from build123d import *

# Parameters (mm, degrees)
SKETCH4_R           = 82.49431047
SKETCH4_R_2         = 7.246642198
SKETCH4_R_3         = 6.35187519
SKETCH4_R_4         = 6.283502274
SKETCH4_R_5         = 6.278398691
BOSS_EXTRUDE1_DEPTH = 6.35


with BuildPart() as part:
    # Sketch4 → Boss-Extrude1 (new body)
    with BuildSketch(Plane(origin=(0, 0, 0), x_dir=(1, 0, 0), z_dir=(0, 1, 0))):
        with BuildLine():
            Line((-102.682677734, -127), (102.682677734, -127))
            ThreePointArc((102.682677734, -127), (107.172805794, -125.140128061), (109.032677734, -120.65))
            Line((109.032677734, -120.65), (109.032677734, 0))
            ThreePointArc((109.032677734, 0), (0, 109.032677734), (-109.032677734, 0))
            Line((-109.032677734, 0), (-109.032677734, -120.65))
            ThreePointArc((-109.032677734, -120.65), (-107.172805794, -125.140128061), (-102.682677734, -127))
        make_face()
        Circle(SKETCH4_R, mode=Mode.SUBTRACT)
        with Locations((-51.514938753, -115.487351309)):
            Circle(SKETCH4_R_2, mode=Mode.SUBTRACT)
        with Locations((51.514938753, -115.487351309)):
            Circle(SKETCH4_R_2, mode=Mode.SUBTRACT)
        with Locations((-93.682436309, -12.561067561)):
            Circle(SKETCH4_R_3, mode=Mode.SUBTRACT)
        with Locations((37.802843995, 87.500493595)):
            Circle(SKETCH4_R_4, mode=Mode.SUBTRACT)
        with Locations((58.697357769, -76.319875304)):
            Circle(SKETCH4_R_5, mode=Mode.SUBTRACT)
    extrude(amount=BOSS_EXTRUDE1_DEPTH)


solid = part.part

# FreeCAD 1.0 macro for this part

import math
import FreeCAD as App
import Part
import Sketcher

V = App.Vector
Q = App.Units.Quantity

doc = App.newDocument("Part")
body = doc.addObject("PartDesign::Body", "Body")

sketch1 = body.newObject("Sketcher::SketchObject", "Sketch")
sketch1.AttachmentSupport = (doc.getObject("XZ_Plane"), [""])
sketch1.MapMode = "FlatFace"
sketch1.addGeometry([
    Part.LineSegment(V(-103, 127, 0), V(103, 127, 0)),
    Part.ArcOfCircle(Part.Circle(V(103, 121, 0), V(0, 0, 1), 6), math.radians(0), math.radians(90)),
    Part.LineSegment(V(109, 121, 0), V(109, 0, 0)),
    Part.ArcOfCircle(Part.Circle(V(0, 0, 0), V(0, 0, 1), 109), math.radians(180), math.radians(360)),
    Part.LineSegment(V(-109, 0, 0), V(-109, 121, 0)),
    Part.ArcOfCircle(Part.Circle(V(-103, 121, 0), V(0, 0, 1), 6), math.radians(90), math.radians(180)),
    Part.Circle(V(-52, 115, 0), V(0, 0, 1), 7),
    Part.Circle(V(52, 115, 0), V(0, 0, 1), 7),
    Part.Circle(V(59, 76, 0), V(0, 0, 1), 6),
    Part.Circle(V(-94, 13, 0), V(0, 0, 1), 6),
    Part.Circle(V(0, 0, 0), V(0, 0, 1), 82),
    Part.Circle(V(38, -88, 0), V(0, 0, 1), 6),
], False)
sketch1.addConstraint([
    Sketcher.Constraint("Tangent", 0, 2, 1, 2),
    Sketcher.Constraint("Tangent", 1, 1, 2, 1),
    Sketcher.Constraint("Tangent", 2, 2, 3, 2),
    Sketcher.Constraint("Tangent", 3, 1, 4, 1),
    Sketcher.Constraint("Tangent", 4, 2, 5, 2),
    Sketcher.Constraint("Tangent", 5, 1, 0, 1),
    Sketcher.Constraint("Horizontal", 0),
    Sketcher.Constraint("Vertical", 2),
    Sketcher.Constraint("Vertical", 4),
    Sketcher.Constraint("Coincident", 3, 3, -1, 1),
    Sketcher.Constraint("Coincident", 10, 3, -1, 1),
    Sketcher.Constraint("Equal", 1, 5),
    Sketcher.Constraint("Equal", 6, 7),
    Sketcher.Constraint("Symmetric", 6, 3, 7, 3, -2),
    Sketcher.Constraint("Radius", 1, Q("0.25 in")),
    Sketcher.Constraint("DistanceY", -1, 1, 0, 2, Q("5 in")),
    Sketcher.Constraint("Diameter", 9, Q("12.70375 mm")),
    Sketcher.Constraint("Diameter", 10, Q("164.988621 mm")),
    Sketcher.Constraint("Diameter", 6, Q("14.493284 mm")),
    Sketcher.Constraint("Diameter", 8, Q("12.556797 mm")),
    Sketcher.Constraint("Diameter", 11, Q("12.567005 mm")),
    Sketcher.Constraint("Radius", 3, Q("109.032678 mm")),
    Sketcher.Constraint("DistanceX", 6, 3, -1, 1, Q("51.514939 mm")),
    Sketcher.Constraint("DistanceY", -1, 1, 6, 3, Q("115.487351 mm")),
    Sketcher.Constraint("DistanceX", 7, 3, 8, 3, Q("7.182419 mm")),
    Sketcher.Constraint("DistanceX", 5, 3, 9, 3, Q("9.000241 mm")),
    Sketcher.Constraint("DistanceY", 11, 3, 8, 3, Q("163.820369 mm")),
    Sketcher.Constraint("DistanceX", 9, 3, 11, 3, Q("131.48528 mm")),
    Sketcher.Constraint("DistanceY", 11, 3, 9, 3, Q("100.061561 mm")),
    Sketcher.Constraint("DistanceY", -1, 1, 8, 3, Q("76.319875 mm")),
])
pad1 = body.newObject("PartDesign::Pad", "Pad")
pad1.Profile = sketch1
pad1.Length = Q("0.25 in")
pad1.Reversed = True

doc.recompute()
